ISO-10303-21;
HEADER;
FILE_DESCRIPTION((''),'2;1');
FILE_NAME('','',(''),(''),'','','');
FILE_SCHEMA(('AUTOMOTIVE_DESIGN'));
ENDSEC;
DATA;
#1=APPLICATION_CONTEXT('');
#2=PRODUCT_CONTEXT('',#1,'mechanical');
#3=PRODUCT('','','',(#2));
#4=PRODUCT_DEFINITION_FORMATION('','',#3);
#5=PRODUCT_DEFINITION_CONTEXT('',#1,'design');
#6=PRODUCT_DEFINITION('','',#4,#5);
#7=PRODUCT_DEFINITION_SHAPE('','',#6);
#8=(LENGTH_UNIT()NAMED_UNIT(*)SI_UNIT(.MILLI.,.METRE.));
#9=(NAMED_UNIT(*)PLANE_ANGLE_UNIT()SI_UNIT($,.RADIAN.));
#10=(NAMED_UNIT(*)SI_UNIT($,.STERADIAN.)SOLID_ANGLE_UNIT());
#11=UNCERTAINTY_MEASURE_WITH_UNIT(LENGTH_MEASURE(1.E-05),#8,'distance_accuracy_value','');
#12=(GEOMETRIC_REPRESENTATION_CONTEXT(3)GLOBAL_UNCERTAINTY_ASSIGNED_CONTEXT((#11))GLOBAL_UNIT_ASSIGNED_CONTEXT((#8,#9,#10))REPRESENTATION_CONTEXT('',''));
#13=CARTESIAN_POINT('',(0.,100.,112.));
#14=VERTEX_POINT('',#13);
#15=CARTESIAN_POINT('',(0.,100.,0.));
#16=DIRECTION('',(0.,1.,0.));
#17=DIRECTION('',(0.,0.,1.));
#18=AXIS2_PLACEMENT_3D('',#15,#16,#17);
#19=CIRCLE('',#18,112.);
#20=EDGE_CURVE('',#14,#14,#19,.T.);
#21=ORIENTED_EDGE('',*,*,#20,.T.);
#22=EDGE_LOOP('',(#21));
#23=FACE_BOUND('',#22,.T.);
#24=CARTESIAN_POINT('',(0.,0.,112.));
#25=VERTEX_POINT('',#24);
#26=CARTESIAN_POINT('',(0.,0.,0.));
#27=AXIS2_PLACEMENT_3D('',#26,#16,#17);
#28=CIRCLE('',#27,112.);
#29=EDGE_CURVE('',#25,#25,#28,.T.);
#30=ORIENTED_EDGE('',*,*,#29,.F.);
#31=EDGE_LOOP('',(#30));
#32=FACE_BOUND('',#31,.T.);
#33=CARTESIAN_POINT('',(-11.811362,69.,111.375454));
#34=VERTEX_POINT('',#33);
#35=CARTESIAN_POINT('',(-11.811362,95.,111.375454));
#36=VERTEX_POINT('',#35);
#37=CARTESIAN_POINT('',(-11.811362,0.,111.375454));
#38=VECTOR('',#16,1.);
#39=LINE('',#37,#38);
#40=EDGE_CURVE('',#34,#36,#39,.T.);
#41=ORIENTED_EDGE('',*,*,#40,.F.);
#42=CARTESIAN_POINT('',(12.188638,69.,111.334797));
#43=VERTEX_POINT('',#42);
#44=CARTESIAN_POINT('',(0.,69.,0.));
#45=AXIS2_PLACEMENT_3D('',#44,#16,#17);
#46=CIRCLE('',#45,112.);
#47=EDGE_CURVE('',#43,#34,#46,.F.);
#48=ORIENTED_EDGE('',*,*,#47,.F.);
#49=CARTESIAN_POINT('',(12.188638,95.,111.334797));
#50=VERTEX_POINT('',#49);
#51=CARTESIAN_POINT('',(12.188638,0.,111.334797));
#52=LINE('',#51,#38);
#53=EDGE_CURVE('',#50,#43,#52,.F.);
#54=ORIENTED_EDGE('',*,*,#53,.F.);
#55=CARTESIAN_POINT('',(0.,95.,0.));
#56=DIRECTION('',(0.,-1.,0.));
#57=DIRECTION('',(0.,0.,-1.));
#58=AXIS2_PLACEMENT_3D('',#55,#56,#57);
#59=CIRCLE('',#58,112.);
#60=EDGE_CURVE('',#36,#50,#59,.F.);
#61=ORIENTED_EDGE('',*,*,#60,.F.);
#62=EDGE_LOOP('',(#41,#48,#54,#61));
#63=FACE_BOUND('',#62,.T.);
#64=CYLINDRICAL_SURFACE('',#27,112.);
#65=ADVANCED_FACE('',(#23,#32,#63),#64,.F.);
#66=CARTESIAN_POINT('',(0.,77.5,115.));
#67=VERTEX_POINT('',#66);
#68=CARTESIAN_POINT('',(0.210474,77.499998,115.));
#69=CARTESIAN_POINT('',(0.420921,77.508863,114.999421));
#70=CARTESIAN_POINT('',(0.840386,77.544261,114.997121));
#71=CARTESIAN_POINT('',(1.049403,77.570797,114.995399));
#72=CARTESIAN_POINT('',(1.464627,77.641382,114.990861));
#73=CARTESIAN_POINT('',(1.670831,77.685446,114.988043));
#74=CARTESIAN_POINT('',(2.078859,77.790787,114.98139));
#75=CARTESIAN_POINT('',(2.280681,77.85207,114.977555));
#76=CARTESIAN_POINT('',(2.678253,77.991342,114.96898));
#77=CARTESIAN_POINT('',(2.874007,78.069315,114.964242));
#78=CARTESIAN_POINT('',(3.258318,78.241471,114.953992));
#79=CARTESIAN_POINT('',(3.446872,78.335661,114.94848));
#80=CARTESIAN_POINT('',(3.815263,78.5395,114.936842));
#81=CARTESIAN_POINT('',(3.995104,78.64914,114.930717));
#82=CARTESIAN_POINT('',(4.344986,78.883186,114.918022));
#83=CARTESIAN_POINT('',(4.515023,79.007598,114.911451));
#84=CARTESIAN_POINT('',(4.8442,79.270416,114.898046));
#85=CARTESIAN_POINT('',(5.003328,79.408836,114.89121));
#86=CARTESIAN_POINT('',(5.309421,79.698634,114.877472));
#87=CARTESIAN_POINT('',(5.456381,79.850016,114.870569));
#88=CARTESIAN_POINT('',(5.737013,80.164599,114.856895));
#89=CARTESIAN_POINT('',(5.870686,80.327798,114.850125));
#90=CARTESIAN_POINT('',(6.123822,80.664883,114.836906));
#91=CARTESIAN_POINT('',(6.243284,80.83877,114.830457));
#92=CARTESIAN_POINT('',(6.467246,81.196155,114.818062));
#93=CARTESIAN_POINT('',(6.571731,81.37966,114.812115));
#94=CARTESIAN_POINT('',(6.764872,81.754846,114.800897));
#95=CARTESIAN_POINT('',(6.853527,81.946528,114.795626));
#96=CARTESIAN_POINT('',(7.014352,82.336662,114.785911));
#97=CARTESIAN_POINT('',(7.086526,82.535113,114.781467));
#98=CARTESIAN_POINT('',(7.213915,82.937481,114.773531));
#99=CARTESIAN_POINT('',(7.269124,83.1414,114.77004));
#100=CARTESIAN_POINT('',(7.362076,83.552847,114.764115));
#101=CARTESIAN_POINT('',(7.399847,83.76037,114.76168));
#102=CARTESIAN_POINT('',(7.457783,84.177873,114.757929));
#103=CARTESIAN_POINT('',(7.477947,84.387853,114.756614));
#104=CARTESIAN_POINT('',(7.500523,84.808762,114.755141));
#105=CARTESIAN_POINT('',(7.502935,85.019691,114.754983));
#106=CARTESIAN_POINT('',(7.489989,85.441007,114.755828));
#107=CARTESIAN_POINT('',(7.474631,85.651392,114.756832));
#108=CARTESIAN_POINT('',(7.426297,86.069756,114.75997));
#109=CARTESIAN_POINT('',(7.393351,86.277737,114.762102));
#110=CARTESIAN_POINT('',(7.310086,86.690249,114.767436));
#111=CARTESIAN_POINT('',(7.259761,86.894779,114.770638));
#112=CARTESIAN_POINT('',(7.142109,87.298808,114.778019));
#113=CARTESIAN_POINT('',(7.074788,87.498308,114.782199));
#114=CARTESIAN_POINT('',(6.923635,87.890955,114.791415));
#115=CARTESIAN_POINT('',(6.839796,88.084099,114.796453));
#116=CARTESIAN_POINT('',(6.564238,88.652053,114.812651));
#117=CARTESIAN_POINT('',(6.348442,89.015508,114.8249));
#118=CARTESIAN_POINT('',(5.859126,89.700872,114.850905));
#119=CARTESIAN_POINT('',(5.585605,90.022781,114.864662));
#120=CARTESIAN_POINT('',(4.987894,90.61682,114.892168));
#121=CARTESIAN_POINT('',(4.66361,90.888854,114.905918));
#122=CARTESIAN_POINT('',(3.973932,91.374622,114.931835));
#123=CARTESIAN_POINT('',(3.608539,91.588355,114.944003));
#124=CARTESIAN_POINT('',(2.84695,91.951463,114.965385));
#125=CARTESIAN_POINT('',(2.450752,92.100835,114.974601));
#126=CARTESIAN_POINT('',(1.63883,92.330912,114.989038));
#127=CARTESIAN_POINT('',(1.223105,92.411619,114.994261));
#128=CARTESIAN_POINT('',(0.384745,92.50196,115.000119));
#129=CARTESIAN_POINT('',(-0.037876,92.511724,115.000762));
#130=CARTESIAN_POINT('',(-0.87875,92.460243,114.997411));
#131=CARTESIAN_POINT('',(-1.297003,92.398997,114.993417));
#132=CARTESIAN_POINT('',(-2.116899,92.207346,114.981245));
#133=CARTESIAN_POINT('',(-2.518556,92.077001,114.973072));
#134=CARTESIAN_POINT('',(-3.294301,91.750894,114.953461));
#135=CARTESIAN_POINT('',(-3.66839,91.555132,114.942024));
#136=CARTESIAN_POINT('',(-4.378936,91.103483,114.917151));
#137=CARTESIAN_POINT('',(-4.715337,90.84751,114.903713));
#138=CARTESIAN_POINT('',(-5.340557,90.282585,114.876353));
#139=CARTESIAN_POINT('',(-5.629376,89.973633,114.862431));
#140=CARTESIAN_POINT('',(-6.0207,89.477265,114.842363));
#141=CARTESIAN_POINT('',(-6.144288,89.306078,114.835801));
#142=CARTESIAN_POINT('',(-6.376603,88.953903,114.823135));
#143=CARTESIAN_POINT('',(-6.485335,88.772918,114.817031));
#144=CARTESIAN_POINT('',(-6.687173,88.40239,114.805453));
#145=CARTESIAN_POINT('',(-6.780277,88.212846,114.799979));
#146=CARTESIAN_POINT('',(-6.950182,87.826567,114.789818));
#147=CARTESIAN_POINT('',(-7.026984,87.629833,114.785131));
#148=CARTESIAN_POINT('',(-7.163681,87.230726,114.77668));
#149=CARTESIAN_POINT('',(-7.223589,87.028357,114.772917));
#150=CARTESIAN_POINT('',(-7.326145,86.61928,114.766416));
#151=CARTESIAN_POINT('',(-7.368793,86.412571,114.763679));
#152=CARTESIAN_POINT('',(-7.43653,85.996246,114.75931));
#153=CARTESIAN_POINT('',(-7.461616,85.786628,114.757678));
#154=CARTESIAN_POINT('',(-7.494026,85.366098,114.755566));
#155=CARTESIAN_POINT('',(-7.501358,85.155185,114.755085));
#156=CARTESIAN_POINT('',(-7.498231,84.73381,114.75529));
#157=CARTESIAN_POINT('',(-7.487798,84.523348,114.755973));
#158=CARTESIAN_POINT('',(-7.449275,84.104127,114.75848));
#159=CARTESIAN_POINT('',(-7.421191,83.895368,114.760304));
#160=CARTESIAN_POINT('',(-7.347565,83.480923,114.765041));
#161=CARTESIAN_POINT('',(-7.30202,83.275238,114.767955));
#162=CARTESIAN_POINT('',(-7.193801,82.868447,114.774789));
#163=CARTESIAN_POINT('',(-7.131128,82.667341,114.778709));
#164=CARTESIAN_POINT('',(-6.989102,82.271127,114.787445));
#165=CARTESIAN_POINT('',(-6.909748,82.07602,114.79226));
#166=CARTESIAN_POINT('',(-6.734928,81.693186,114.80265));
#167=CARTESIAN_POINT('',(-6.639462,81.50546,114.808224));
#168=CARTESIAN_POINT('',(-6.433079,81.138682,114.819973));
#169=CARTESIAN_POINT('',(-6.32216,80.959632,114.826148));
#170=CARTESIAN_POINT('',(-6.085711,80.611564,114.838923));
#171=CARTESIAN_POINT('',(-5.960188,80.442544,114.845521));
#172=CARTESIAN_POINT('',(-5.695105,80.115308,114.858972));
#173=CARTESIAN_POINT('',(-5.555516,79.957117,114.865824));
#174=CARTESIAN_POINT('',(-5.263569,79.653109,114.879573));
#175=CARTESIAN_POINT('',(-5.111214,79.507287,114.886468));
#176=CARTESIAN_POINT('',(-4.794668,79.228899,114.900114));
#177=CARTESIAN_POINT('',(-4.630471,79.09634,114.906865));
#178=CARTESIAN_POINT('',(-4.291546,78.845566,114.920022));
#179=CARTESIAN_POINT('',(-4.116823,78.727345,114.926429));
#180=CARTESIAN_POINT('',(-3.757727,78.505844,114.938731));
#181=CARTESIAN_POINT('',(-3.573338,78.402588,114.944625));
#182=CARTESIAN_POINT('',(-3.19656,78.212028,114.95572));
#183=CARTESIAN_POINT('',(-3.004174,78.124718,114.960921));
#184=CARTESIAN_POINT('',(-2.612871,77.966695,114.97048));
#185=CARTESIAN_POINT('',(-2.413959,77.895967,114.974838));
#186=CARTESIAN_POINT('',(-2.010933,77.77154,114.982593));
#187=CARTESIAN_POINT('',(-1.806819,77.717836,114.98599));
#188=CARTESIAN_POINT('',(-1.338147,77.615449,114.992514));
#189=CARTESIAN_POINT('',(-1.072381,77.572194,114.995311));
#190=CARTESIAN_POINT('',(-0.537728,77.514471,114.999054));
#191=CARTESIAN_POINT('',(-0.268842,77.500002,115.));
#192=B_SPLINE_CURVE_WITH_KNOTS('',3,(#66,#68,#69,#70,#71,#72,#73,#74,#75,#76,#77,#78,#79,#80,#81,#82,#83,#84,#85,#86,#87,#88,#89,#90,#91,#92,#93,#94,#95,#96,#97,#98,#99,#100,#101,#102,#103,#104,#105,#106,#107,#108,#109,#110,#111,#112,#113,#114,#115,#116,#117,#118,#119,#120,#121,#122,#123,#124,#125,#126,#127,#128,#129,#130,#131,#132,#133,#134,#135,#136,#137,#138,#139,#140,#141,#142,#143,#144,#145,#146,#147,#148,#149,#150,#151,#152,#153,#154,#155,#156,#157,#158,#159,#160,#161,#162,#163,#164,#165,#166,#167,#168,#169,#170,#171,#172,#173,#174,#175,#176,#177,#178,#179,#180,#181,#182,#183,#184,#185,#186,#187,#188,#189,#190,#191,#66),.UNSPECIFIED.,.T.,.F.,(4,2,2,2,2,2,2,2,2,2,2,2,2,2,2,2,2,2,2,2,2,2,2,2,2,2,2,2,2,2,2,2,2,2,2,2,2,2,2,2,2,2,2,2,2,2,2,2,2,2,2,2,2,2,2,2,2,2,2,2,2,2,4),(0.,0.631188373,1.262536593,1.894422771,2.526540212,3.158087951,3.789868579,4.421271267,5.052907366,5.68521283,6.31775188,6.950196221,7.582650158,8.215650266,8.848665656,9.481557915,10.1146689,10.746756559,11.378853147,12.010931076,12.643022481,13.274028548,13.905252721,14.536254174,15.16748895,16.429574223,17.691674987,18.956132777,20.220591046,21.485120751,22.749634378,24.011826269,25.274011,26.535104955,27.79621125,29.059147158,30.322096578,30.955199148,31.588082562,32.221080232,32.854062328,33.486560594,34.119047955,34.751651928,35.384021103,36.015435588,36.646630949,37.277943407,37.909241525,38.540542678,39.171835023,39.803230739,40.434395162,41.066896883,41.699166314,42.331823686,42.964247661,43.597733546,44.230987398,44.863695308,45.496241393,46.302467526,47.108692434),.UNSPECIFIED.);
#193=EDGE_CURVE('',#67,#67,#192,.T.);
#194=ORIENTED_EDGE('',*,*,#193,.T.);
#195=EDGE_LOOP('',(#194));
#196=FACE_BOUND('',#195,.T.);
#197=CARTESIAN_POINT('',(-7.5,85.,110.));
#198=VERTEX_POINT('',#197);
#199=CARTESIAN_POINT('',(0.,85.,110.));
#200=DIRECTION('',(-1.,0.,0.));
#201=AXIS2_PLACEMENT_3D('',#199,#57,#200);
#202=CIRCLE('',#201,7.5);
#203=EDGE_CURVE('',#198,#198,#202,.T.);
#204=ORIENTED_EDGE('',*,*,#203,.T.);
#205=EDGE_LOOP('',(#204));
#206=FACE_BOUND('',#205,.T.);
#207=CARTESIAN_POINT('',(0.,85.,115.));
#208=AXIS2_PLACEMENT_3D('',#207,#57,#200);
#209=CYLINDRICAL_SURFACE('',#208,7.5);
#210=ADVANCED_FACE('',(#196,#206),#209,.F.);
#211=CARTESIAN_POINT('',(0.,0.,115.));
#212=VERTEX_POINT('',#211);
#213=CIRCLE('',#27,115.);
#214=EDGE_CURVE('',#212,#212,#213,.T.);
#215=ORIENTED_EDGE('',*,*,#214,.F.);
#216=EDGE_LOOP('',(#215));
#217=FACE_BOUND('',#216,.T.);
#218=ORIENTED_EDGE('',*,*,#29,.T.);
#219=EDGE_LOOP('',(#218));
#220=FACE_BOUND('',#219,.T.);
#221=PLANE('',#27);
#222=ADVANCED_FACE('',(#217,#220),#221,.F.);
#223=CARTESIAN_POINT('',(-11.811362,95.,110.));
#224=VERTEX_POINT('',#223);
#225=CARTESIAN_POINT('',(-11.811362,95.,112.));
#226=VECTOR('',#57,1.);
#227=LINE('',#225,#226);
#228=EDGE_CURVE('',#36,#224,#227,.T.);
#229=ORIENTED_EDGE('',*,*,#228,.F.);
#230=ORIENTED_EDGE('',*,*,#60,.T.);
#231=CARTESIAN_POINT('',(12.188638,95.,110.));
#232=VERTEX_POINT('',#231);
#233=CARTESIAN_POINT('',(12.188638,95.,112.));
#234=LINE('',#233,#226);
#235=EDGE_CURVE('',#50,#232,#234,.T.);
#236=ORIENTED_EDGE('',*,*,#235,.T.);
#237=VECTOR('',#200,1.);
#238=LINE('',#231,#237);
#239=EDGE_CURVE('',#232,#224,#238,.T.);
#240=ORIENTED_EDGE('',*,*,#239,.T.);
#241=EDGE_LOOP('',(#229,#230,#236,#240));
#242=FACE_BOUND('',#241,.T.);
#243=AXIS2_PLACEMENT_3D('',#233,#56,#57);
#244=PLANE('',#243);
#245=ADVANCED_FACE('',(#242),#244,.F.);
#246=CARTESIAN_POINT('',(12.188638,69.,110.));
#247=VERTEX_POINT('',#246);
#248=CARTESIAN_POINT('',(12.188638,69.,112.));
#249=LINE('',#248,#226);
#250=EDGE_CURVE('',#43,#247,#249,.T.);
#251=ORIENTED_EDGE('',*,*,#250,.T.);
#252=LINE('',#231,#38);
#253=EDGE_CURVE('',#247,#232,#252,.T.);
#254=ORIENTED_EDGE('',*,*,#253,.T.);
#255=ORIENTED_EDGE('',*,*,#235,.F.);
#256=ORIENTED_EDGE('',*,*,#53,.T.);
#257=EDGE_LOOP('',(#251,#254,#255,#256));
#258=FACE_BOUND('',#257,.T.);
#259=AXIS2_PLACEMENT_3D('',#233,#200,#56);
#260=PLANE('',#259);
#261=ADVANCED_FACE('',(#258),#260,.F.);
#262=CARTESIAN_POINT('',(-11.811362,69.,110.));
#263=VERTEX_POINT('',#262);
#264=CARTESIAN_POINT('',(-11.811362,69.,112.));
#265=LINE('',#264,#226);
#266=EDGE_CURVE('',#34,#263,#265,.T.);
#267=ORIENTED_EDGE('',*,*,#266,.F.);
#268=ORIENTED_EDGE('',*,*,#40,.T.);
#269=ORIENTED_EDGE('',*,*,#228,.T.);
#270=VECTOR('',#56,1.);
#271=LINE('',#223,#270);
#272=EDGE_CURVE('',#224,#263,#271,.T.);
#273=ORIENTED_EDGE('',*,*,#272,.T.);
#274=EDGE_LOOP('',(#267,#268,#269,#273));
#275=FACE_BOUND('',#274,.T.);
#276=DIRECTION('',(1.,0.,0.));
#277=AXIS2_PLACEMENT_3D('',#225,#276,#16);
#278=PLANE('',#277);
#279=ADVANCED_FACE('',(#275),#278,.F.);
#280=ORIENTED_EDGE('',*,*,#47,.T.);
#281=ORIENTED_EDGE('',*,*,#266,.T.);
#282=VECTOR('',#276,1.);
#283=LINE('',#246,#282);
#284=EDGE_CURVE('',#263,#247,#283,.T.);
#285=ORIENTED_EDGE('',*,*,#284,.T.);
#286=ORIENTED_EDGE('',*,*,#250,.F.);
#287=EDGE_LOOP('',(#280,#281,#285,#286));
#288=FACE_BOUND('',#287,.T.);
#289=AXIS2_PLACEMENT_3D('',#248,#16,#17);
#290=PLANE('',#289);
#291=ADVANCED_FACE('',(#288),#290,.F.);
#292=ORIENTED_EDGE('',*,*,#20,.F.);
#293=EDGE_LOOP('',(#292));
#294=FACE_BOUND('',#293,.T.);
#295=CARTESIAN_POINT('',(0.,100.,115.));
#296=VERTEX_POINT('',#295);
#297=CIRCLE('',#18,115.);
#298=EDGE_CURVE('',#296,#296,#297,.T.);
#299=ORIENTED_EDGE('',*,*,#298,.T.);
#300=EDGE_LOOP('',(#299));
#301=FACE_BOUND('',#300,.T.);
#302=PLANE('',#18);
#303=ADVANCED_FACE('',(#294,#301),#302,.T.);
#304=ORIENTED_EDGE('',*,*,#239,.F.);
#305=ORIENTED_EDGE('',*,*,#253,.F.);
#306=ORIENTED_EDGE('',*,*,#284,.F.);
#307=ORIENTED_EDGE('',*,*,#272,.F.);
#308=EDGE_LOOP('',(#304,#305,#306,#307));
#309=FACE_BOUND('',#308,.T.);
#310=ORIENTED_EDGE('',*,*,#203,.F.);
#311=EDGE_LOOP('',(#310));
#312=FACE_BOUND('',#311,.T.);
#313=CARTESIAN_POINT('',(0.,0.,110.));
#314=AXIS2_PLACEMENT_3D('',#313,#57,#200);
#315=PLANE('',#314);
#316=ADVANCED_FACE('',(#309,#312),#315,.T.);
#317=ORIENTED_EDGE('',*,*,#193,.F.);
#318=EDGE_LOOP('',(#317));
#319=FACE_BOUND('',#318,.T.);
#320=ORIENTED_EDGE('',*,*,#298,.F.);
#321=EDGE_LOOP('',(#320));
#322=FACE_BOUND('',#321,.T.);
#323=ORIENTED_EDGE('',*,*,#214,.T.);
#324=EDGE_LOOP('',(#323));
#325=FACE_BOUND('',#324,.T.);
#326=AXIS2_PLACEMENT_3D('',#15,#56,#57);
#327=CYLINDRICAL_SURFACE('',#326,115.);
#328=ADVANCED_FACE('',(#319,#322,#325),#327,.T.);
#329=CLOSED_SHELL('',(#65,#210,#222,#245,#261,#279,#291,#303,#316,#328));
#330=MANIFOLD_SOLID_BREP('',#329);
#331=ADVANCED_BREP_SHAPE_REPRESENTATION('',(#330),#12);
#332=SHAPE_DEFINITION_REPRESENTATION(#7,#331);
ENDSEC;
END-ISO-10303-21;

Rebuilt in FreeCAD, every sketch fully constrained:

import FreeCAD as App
import Part
import Sketcher

V = App.Vector

doc = App.newDocument("Part")
body = doc.addObject("PartDesign::Body", "Body")

# Sketch on XZ plane
sketch1 = body.newObject("Sketcher::SketchObject", "Sketch")
sketch1.AttachmentSupport = (doc.getObject("XZ_Plane"), [""])
sketch1.MapMode = "FlatFace"
sketch1.addGeometry(Part.Circle(V(0, 0, 0), V(0, 0, 1), 115), False)
sketch1.addConstraint([
    Sketcher.Constraint("Coincident", 0, 3, -1, 1),
    Sketcher.Constraint("Diameter", 0, 230.0),
])
pad1 = body.newObject("PartDesign::Pad", "Pad")
pad1.Profile = sketch1
pad1.Length = 100
pad1.Reversed = True

# Sketch on XZ plane
sketch2 = body.newObject("Sketcher::SketchObject", "Sketch001")
sketch2.AttachmentSupport = (doc.getObject("XZ_Plane"), [""])
sketch2.MapMode = "FlatFace"
sketch2.AttachmentOffset = App.Placement(V(0, 0, -100), App.Rotation())
sketch2.addGeometry(Part.Circle(V(0, 0, 0), V(0, 0, 1), 112), False)
sketch2.addConstraint([
    Sketcher.Constraint("Coincident", 0, 3, -1, 1),
    Sketcher.Constraint("Diameter", 0, 224.0),
])
pocket1 = body.newObject("PartDesign::Pocket", "Pocket")
pocket1.Profile = sketch2
pocket1.Type = "ThroughAll"
pocket1.Reversed = True

# Sketch on XY plane
sketch3 = body.newObject("Sketcher::SketchObject", "Sketch002")
sketch3.AttachmentSupport = (doc.getObject("XY_Plane"), [""])
sketch3.MapMode = "FlatFace"
sketch3.AttachmentOffset = App.Placement(V(0, 0, 110), App.Rotation())
sketch3.addGeometry(Part.Circle(V(0, 85, 0), V(0, 0, 1), 8), False)
sketch3.addConstraint([
    Sketcher.Constraint("PointOnObject", 0, 3, -2),
    Sketcher.Constraint("Diameter", 0, 15.0),
    Sketcher.Constraint("DistanceY", -1, 1, 0, 3, 85.0),
])
pocket2 = body.newObject("PartDesign::Pocket", "Pocket001")
pocket2.Profile = sketch3
pocket2.Type = "ThroughAll"
pocket2.Reversed = True

# Sketch on XY plane
sketch4 = body.newObject("Sketcher::SketchObject", "Sketch003")
sketch4.AttachmentSupport = (doc.getObject("XY_Plane"), [""])
sketch4.MapMode = "FlatFace"
sketch4.AttachmentOffset = App.Placement(V(0, 0, 110), App.Rotation())
sketch4.addGeometry([
    Part.LineSegment(V(-12, 95, 0), V(-12, 69, 0)),
    Part.LineSegment(V(-12, 69, 0), V(12, 69, 0)),
    Part.LineSegment(V(12, 69, 0), V(12, 95, 0)),
    Part.LineSegment(V(12, 95, 0), V(-12, 95, 0)),
], False)
sketch4.addConstraint([
    Sketcher.Constraint("Coincident", 0, 2, 1, 1),
    Sketcher.Constraint("Coincident", 1, 2, 2, 1),
    Sketcher.Constraint("Coincident", 2, 2, 3, 1),
    Sketcher.Constraint("Coincident", 3, 2, 0, 1),
    Sketcher.Constraint("Vertical", 0),
    Sketcher.Constraint("Horizontal", 1),
    Sketcher.Constraint("Vertical", 2),
    Sketcher.Constraint("Horizontal", 3),
    Sketcher.Constraint("DistanceX", 1, 1, 1, 2, 24.0),
    Sketcher.Constraint("DistanceY", 0, 2, 0, 1, 26.0),
    Sketcher.Constraint("DistanceY", -1, 1, 0, 2, 69.0),
    Sketcher.Constraint("DistanceX", 0, 2, -1, 1, 11.811362),
])
pad2 = body.newObject("PartDesign::Pad", "Pad001")
pad2.Profile = sketch4
pad2.Length = 2

# Sketch on XY plane
sketch5 = body.newObject("Sketcher::SketchObject", "Sketch004")
sketch5.AttachmentSupport = (doc.getObject("XY_Plane"), [""])
sketch5.MapMode = "FlatFace"
sketch5.AttachmentOffset = App.Placement(V(0, 0, 110), App.Rotation())
sketch5.addGeometry(Part.Circle(V(0, 85, 0), V(0, 0, 1), 8), False)
sketch5.addConstraint([
    Sketcher.Constraint("PointOnObject", 0, 3, -2),
    Sketcher.Constraint("Diameter", 0, 15.0),
    Sketcher.Constraint("DistanceY", -1, 1, 0, 3, 85.0),
])
pocket3 = body.newObject("PartDesign::Pocket", "Pocket002")
pocket3.Profile = sketch5
pocket3.Type = "ThroughAll"
pocket3.Reversed = True

doc.recompute()
